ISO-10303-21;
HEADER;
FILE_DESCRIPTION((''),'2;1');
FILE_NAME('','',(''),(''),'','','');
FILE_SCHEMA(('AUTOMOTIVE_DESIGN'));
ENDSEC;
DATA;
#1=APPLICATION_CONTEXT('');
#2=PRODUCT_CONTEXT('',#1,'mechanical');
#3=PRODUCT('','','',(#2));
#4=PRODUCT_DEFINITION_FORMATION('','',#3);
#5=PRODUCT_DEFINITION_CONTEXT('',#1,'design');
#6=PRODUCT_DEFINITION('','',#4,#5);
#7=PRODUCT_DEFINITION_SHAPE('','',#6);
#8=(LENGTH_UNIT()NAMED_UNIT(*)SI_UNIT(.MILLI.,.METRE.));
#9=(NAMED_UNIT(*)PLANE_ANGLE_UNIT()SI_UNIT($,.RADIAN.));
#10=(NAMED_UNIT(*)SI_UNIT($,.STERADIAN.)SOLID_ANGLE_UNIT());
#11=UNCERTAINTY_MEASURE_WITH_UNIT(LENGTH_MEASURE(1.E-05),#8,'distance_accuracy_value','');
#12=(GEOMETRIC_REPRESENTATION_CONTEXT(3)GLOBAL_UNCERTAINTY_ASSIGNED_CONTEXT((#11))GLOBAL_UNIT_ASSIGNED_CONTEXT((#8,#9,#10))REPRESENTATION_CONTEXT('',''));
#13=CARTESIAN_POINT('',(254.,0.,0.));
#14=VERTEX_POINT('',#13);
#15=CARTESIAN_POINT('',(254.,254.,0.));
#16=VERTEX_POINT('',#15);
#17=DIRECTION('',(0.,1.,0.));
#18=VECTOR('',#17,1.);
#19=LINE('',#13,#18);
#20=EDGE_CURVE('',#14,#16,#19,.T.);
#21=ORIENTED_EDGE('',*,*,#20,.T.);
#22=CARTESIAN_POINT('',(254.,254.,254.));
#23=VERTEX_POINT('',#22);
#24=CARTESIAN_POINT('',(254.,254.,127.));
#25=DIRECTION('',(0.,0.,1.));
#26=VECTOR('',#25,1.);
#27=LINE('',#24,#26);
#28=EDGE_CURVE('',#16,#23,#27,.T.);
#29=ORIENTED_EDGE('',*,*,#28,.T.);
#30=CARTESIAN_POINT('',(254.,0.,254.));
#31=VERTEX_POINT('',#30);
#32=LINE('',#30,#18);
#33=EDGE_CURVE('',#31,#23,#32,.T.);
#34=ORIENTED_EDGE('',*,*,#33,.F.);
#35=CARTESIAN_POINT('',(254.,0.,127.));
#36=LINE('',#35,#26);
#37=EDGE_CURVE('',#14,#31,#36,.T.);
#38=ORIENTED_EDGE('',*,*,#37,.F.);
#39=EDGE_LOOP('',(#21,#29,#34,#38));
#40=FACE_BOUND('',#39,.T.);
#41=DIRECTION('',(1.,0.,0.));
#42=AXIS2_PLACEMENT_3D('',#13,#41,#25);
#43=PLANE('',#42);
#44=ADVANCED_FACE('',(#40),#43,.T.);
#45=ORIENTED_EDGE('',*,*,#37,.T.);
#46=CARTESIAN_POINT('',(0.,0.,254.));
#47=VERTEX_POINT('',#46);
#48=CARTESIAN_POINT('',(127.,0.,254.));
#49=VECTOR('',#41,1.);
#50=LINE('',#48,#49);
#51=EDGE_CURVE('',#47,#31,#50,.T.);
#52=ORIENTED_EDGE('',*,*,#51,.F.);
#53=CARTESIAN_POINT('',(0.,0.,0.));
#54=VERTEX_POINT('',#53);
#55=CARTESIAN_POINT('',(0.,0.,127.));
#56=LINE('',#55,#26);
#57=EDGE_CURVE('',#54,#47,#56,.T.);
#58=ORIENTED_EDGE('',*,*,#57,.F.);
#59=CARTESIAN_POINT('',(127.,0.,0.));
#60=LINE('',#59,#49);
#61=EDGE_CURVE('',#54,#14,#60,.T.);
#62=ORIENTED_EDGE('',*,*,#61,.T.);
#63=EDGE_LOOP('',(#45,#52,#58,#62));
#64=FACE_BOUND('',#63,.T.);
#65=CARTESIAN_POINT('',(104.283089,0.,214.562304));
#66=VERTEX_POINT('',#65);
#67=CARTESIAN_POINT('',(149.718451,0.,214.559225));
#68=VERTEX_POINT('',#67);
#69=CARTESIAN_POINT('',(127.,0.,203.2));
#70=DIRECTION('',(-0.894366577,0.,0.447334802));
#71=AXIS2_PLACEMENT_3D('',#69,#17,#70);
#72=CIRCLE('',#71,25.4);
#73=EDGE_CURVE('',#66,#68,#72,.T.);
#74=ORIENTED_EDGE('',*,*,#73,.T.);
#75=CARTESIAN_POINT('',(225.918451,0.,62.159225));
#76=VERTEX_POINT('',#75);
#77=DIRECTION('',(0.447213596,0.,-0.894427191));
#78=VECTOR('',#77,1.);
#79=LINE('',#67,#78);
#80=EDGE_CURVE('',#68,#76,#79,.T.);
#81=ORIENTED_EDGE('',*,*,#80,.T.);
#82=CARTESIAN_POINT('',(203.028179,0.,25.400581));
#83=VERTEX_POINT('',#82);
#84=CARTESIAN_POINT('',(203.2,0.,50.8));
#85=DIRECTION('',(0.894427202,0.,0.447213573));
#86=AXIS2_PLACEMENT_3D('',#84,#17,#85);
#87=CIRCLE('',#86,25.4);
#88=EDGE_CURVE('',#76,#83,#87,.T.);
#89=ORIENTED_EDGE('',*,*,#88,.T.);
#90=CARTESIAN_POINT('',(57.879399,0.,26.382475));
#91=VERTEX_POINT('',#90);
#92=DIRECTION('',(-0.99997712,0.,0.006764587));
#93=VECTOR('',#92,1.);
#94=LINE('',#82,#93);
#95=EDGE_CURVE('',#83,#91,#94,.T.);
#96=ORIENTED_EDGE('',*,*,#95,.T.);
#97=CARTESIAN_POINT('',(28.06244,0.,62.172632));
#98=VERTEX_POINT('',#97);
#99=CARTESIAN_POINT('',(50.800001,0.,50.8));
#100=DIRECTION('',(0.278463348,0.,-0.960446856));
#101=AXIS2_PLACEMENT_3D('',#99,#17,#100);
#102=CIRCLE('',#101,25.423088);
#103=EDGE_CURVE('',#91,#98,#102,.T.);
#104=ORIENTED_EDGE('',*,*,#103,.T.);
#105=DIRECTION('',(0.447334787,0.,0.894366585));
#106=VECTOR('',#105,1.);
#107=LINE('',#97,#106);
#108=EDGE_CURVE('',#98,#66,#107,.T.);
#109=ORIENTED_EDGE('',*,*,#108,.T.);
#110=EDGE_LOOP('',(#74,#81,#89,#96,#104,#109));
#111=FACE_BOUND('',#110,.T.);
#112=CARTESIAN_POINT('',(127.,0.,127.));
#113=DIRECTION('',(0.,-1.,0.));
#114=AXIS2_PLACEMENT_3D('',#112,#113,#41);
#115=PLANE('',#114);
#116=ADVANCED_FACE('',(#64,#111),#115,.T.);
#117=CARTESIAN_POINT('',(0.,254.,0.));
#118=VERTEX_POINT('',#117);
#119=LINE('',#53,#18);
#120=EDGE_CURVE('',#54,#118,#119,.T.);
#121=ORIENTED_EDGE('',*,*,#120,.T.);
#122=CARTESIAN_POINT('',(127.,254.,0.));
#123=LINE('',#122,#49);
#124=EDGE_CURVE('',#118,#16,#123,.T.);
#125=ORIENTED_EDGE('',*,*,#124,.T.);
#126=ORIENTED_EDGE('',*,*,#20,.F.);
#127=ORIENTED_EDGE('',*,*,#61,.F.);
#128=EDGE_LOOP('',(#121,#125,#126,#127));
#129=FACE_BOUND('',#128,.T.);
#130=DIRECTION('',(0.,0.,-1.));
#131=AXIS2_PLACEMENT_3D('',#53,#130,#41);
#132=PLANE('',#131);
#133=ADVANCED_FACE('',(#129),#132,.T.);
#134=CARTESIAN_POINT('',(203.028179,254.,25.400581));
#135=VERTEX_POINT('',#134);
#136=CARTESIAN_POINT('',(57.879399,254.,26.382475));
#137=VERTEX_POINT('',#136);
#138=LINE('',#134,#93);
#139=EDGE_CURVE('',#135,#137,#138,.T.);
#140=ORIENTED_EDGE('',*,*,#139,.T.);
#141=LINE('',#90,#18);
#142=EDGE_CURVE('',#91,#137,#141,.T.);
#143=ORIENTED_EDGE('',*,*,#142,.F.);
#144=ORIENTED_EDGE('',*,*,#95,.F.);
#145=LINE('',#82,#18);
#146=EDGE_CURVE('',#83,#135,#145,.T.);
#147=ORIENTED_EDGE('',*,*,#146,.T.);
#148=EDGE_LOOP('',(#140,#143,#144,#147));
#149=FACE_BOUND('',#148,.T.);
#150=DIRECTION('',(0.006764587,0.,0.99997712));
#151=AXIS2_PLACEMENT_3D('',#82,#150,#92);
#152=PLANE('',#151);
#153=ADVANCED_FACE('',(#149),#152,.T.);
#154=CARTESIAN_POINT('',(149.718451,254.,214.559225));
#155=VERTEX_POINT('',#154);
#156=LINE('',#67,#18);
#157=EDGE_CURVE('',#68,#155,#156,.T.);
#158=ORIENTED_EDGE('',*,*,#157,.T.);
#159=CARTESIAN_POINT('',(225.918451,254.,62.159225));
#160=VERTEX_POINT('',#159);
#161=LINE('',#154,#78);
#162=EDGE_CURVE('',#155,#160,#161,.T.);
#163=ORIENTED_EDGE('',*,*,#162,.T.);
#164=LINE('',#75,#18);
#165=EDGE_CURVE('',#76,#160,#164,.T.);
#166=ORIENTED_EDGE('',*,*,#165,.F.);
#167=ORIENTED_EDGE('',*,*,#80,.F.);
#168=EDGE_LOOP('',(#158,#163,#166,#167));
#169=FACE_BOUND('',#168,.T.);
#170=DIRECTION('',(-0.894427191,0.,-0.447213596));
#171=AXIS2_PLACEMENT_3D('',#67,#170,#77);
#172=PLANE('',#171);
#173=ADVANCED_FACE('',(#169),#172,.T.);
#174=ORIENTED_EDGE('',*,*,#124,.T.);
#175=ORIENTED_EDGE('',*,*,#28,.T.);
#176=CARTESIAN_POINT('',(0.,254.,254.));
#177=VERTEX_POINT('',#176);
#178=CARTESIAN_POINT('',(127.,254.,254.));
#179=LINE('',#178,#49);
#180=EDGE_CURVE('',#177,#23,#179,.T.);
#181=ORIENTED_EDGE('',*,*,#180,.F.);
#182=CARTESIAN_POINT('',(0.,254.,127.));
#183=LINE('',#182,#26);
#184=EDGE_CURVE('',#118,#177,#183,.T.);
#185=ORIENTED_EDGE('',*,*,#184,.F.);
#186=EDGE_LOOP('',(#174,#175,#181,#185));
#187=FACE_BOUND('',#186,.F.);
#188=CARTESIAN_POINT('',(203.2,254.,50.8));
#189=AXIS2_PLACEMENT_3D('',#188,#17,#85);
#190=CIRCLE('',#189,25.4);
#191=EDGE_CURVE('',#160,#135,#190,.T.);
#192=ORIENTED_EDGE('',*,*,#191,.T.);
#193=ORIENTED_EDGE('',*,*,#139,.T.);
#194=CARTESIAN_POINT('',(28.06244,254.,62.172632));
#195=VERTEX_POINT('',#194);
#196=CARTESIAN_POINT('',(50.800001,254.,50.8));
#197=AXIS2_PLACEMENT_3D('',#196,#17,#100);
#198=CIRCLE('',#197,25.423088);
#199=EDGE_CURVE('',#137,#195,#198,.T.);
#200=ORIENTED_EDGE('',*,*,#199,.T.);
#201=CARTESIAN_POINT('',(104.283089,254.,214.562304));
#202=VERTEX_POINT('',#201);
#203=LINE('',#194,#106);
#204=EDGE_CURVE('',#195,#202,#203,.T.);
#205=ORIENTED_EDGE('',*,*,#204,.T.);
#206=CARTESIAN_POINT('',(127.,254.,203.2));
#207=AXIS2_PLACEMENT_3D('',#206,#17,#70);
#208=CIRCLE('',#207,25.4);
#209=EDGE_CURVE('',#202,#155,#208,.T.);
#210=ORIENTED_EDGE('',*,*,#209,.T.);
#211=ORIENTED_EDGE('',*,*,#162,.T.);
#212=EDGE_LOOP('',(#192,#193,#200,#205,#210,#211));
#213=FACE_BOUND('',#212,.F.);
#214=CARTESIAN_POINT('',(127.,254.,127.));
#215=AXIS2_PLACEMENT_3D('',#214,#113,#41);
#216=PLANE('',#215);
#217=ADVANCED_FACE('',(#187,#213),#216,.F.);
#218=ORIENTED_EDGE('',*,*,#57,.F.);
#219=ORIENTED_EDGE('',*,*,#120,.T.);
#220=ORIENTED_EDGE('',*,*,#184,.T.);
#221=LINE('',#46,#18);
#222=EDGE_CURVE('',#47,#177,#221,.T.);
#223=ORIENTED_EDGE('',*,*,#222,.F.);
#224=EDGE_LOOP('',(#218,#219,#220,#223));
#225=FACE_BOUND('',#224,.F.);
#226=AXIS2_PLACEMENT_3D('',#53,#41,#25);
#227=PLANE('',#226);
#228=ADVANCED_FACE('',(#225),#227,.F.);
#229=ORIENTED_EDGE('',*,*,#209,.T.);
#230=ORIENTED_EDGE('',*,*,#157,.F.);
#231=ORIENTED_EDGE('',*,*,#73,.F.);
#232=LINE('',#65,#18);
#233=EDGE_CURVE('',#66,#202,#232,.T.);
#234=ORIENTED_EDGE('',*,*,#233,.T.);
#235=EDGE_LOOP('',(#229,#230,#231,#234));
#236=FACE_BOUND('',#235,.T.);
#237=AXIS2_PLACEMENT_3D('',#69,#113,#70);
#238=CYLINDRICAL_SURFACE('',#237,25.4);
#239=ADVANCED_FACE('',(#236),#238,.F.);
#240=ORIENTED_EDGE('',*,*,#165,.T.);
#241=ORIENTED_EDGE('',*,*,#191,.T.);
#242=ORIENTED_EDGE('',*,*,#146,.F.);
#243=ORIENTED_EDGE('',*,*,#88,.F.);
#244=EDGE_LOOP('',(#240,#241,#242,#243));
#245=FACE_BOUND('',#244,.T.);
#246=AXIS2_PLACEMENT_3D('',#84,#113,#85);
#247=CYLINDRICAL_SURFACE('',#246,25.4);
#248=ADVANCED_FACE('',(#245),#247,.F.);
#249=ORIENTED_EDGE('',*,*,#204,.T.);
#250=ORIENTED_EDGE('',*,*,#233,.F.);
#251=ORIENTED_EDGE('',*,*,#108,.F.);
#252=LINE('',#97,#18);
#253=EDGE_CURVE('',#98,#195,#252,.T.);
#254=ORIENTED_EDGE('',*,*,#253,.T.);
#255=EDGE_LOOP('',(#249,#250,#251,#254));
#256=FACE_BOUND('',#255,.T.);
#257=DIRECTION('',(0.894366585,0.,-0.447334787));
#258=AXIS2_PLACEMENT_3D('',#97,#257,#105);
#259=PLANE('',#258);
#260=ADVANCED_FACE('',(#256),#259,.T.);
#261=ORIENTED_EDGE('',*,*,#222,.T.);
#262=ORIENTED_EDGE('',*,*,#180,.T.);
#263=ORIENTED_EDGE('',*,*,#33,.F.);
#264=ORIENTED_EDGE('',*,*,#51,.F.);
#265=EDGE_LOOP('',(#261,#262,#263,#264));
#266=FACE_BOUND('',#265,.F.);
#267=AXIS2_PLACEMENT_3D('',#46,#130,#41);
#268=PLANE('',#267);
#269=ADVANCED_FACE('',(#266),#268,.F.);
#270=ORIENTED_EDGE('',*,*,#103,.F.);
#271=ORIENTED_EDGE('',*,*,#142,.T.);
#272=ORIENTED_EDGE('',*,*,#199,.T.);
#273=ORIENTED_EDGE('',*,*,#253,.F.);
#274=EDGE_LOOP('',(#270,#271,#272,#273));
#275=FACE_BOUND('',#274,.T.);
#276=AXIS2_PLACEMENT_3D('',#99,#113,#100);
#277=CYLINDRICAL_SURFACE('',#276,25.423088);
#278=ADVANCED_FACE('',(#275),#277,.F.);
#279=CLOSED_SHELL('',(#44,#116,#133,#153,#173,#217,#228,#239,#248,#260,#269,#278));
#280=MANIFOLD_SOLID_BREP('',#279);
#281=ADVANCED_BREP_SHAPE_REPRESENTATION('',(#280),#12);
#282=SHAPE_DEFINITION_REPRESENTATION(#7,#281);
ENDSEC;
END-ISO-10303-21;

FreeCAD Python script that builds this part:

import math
import FreeCAD as App
import Part
import Sketcher

V = App.Vector
Q = App.Units.Quantity

doc = App.newDocument("Part")
body = doc.addObject("PartDesign::Body", "Body")

# Sketch on XZ plane
sketch1 = body.newObject("Sketcher::SketchObject", "Sketch")
sketch1.AttachmentSupport = (doc.getObject("XZ_Plane"), [""])
sketch1.MapMode = "FlatFace"
sketch1.addGeometry([
    Part.LineSegment(V(0, 254, 0), V(0, 0, 0)),  # 0
    Part.LineSegment(V(0, 0, 0), V(254, 0, 0)),  # 1
    Part.LineSegment(V(254, 0, 0), V(254, 254, 0)),  # 2
    Part.LineSegment(V(254, 254, 0), V(0, 254, 0)),  # 3
    Part.LineSegment(V(203.028179, 25.400581, 0), V(57.879399, 26.382475, 0)),  # 4
    Part.ArcOfCircle(Part.Circle(V(50.800001, 50.8, 0), V(0, 0, 1), 25.423088), math.radians(153.427185), math.radians(286.168514)),  # 5
    Part.LineSegment(V(28.06244, 62.172632, 0), V(104.283089, 214.562304, 0)),  # 6
    Part.ArcOfCircle(Part.Circle(V(127, 203.2, 0), V(0, 0, 1), 25.4), math.radians(26.56505), math.radians(153.427184)),  # 7
    Part.LineSegment(V(149.718451, 214.559225, 0), V(225.918451, 62.159225, 0)),  # 8
    Part.ArcOfCircle(Part.Circle(V(203.2, 50.8, 0), V(0, 0, 1), 25.4), math.radians(-90.387586), math.radians(26.56505)),  # 9
], False)
sketch1.addConstraint([
    Sketcher.Constraint("Coincident", 0, 2, 1, 1),
    Sketcher.Constraint("Coincident", 1, 2, 2, 1),
    Sketcher.Constraint("Coincident", 2, 2, 3, 1),
    Sketcher.Constraint("Coincident", 3, 2, 0, 1),
    Sketcher.Constraint("Coincident", 4, 2, 5, 2),
    Sketcher.Constraint("Tangent", 5, 1, 6, 1),
    Sketcher.Constraint("Tangent", 6, 2, 7, 2),
    Sketcher.Constraint("Tangent", 7, 1, 8, 1),
    Sketcher.Constraint("Tangent", 8, 2, 9, 2),
    Sketcher.Constraint("Tangent", 9, 1, 4, 1),
    Sketcher.Constraint("Vertical", 0),
    Sketcher.Constraint("Horizontal", 1),
    Sketcher.Constraint("Vertical", 2),
    Sketcher.Constraint("Horizontal", 3),
    Sketcher.Constraint("Coincident", 0, 2, -1, 1),
    Sketcher.Constraint("Equal", 7, 9),
    Sketcher.Constraint("Horizontal", 5, 3, 9, 3),
    Sketcher.Constraint("Equal", 3, 0),
    Sketcher.Constraint("Equal", 6, 8),
    Sketcher.Constraint("Radius", 7, Q("1 in")),
    Sketcher.Constraint("DistanceX", 1, 1, 1, 2, Q("10 in")),
    Sketcher.Constraint("DistanceX", -1, 1, 5, 3, Q("2 in")),
    Sketcher.Constraint("DistanceY", -1, 1, 5, 3, Q("2 in")),
    Sketcher.Constraint("DistanceX", -1, 1, 7, 3, Q("5 in")),
    Sketcher.Constraint("DistanceY", -1, 1, 7, 3, Q("8 in")),
    Sketcher.Constraint("Radius", 5, 25.423088),
    Sketcher.Constraint("Distance", 4, 145.152101),
])
pad1 = body.newObject("PartDesign::Pad", "Pad")
pad1.Profile = sketch1
pad1.Length = Q("10 in")
pad1.Reversed = True

doc.recompute()
